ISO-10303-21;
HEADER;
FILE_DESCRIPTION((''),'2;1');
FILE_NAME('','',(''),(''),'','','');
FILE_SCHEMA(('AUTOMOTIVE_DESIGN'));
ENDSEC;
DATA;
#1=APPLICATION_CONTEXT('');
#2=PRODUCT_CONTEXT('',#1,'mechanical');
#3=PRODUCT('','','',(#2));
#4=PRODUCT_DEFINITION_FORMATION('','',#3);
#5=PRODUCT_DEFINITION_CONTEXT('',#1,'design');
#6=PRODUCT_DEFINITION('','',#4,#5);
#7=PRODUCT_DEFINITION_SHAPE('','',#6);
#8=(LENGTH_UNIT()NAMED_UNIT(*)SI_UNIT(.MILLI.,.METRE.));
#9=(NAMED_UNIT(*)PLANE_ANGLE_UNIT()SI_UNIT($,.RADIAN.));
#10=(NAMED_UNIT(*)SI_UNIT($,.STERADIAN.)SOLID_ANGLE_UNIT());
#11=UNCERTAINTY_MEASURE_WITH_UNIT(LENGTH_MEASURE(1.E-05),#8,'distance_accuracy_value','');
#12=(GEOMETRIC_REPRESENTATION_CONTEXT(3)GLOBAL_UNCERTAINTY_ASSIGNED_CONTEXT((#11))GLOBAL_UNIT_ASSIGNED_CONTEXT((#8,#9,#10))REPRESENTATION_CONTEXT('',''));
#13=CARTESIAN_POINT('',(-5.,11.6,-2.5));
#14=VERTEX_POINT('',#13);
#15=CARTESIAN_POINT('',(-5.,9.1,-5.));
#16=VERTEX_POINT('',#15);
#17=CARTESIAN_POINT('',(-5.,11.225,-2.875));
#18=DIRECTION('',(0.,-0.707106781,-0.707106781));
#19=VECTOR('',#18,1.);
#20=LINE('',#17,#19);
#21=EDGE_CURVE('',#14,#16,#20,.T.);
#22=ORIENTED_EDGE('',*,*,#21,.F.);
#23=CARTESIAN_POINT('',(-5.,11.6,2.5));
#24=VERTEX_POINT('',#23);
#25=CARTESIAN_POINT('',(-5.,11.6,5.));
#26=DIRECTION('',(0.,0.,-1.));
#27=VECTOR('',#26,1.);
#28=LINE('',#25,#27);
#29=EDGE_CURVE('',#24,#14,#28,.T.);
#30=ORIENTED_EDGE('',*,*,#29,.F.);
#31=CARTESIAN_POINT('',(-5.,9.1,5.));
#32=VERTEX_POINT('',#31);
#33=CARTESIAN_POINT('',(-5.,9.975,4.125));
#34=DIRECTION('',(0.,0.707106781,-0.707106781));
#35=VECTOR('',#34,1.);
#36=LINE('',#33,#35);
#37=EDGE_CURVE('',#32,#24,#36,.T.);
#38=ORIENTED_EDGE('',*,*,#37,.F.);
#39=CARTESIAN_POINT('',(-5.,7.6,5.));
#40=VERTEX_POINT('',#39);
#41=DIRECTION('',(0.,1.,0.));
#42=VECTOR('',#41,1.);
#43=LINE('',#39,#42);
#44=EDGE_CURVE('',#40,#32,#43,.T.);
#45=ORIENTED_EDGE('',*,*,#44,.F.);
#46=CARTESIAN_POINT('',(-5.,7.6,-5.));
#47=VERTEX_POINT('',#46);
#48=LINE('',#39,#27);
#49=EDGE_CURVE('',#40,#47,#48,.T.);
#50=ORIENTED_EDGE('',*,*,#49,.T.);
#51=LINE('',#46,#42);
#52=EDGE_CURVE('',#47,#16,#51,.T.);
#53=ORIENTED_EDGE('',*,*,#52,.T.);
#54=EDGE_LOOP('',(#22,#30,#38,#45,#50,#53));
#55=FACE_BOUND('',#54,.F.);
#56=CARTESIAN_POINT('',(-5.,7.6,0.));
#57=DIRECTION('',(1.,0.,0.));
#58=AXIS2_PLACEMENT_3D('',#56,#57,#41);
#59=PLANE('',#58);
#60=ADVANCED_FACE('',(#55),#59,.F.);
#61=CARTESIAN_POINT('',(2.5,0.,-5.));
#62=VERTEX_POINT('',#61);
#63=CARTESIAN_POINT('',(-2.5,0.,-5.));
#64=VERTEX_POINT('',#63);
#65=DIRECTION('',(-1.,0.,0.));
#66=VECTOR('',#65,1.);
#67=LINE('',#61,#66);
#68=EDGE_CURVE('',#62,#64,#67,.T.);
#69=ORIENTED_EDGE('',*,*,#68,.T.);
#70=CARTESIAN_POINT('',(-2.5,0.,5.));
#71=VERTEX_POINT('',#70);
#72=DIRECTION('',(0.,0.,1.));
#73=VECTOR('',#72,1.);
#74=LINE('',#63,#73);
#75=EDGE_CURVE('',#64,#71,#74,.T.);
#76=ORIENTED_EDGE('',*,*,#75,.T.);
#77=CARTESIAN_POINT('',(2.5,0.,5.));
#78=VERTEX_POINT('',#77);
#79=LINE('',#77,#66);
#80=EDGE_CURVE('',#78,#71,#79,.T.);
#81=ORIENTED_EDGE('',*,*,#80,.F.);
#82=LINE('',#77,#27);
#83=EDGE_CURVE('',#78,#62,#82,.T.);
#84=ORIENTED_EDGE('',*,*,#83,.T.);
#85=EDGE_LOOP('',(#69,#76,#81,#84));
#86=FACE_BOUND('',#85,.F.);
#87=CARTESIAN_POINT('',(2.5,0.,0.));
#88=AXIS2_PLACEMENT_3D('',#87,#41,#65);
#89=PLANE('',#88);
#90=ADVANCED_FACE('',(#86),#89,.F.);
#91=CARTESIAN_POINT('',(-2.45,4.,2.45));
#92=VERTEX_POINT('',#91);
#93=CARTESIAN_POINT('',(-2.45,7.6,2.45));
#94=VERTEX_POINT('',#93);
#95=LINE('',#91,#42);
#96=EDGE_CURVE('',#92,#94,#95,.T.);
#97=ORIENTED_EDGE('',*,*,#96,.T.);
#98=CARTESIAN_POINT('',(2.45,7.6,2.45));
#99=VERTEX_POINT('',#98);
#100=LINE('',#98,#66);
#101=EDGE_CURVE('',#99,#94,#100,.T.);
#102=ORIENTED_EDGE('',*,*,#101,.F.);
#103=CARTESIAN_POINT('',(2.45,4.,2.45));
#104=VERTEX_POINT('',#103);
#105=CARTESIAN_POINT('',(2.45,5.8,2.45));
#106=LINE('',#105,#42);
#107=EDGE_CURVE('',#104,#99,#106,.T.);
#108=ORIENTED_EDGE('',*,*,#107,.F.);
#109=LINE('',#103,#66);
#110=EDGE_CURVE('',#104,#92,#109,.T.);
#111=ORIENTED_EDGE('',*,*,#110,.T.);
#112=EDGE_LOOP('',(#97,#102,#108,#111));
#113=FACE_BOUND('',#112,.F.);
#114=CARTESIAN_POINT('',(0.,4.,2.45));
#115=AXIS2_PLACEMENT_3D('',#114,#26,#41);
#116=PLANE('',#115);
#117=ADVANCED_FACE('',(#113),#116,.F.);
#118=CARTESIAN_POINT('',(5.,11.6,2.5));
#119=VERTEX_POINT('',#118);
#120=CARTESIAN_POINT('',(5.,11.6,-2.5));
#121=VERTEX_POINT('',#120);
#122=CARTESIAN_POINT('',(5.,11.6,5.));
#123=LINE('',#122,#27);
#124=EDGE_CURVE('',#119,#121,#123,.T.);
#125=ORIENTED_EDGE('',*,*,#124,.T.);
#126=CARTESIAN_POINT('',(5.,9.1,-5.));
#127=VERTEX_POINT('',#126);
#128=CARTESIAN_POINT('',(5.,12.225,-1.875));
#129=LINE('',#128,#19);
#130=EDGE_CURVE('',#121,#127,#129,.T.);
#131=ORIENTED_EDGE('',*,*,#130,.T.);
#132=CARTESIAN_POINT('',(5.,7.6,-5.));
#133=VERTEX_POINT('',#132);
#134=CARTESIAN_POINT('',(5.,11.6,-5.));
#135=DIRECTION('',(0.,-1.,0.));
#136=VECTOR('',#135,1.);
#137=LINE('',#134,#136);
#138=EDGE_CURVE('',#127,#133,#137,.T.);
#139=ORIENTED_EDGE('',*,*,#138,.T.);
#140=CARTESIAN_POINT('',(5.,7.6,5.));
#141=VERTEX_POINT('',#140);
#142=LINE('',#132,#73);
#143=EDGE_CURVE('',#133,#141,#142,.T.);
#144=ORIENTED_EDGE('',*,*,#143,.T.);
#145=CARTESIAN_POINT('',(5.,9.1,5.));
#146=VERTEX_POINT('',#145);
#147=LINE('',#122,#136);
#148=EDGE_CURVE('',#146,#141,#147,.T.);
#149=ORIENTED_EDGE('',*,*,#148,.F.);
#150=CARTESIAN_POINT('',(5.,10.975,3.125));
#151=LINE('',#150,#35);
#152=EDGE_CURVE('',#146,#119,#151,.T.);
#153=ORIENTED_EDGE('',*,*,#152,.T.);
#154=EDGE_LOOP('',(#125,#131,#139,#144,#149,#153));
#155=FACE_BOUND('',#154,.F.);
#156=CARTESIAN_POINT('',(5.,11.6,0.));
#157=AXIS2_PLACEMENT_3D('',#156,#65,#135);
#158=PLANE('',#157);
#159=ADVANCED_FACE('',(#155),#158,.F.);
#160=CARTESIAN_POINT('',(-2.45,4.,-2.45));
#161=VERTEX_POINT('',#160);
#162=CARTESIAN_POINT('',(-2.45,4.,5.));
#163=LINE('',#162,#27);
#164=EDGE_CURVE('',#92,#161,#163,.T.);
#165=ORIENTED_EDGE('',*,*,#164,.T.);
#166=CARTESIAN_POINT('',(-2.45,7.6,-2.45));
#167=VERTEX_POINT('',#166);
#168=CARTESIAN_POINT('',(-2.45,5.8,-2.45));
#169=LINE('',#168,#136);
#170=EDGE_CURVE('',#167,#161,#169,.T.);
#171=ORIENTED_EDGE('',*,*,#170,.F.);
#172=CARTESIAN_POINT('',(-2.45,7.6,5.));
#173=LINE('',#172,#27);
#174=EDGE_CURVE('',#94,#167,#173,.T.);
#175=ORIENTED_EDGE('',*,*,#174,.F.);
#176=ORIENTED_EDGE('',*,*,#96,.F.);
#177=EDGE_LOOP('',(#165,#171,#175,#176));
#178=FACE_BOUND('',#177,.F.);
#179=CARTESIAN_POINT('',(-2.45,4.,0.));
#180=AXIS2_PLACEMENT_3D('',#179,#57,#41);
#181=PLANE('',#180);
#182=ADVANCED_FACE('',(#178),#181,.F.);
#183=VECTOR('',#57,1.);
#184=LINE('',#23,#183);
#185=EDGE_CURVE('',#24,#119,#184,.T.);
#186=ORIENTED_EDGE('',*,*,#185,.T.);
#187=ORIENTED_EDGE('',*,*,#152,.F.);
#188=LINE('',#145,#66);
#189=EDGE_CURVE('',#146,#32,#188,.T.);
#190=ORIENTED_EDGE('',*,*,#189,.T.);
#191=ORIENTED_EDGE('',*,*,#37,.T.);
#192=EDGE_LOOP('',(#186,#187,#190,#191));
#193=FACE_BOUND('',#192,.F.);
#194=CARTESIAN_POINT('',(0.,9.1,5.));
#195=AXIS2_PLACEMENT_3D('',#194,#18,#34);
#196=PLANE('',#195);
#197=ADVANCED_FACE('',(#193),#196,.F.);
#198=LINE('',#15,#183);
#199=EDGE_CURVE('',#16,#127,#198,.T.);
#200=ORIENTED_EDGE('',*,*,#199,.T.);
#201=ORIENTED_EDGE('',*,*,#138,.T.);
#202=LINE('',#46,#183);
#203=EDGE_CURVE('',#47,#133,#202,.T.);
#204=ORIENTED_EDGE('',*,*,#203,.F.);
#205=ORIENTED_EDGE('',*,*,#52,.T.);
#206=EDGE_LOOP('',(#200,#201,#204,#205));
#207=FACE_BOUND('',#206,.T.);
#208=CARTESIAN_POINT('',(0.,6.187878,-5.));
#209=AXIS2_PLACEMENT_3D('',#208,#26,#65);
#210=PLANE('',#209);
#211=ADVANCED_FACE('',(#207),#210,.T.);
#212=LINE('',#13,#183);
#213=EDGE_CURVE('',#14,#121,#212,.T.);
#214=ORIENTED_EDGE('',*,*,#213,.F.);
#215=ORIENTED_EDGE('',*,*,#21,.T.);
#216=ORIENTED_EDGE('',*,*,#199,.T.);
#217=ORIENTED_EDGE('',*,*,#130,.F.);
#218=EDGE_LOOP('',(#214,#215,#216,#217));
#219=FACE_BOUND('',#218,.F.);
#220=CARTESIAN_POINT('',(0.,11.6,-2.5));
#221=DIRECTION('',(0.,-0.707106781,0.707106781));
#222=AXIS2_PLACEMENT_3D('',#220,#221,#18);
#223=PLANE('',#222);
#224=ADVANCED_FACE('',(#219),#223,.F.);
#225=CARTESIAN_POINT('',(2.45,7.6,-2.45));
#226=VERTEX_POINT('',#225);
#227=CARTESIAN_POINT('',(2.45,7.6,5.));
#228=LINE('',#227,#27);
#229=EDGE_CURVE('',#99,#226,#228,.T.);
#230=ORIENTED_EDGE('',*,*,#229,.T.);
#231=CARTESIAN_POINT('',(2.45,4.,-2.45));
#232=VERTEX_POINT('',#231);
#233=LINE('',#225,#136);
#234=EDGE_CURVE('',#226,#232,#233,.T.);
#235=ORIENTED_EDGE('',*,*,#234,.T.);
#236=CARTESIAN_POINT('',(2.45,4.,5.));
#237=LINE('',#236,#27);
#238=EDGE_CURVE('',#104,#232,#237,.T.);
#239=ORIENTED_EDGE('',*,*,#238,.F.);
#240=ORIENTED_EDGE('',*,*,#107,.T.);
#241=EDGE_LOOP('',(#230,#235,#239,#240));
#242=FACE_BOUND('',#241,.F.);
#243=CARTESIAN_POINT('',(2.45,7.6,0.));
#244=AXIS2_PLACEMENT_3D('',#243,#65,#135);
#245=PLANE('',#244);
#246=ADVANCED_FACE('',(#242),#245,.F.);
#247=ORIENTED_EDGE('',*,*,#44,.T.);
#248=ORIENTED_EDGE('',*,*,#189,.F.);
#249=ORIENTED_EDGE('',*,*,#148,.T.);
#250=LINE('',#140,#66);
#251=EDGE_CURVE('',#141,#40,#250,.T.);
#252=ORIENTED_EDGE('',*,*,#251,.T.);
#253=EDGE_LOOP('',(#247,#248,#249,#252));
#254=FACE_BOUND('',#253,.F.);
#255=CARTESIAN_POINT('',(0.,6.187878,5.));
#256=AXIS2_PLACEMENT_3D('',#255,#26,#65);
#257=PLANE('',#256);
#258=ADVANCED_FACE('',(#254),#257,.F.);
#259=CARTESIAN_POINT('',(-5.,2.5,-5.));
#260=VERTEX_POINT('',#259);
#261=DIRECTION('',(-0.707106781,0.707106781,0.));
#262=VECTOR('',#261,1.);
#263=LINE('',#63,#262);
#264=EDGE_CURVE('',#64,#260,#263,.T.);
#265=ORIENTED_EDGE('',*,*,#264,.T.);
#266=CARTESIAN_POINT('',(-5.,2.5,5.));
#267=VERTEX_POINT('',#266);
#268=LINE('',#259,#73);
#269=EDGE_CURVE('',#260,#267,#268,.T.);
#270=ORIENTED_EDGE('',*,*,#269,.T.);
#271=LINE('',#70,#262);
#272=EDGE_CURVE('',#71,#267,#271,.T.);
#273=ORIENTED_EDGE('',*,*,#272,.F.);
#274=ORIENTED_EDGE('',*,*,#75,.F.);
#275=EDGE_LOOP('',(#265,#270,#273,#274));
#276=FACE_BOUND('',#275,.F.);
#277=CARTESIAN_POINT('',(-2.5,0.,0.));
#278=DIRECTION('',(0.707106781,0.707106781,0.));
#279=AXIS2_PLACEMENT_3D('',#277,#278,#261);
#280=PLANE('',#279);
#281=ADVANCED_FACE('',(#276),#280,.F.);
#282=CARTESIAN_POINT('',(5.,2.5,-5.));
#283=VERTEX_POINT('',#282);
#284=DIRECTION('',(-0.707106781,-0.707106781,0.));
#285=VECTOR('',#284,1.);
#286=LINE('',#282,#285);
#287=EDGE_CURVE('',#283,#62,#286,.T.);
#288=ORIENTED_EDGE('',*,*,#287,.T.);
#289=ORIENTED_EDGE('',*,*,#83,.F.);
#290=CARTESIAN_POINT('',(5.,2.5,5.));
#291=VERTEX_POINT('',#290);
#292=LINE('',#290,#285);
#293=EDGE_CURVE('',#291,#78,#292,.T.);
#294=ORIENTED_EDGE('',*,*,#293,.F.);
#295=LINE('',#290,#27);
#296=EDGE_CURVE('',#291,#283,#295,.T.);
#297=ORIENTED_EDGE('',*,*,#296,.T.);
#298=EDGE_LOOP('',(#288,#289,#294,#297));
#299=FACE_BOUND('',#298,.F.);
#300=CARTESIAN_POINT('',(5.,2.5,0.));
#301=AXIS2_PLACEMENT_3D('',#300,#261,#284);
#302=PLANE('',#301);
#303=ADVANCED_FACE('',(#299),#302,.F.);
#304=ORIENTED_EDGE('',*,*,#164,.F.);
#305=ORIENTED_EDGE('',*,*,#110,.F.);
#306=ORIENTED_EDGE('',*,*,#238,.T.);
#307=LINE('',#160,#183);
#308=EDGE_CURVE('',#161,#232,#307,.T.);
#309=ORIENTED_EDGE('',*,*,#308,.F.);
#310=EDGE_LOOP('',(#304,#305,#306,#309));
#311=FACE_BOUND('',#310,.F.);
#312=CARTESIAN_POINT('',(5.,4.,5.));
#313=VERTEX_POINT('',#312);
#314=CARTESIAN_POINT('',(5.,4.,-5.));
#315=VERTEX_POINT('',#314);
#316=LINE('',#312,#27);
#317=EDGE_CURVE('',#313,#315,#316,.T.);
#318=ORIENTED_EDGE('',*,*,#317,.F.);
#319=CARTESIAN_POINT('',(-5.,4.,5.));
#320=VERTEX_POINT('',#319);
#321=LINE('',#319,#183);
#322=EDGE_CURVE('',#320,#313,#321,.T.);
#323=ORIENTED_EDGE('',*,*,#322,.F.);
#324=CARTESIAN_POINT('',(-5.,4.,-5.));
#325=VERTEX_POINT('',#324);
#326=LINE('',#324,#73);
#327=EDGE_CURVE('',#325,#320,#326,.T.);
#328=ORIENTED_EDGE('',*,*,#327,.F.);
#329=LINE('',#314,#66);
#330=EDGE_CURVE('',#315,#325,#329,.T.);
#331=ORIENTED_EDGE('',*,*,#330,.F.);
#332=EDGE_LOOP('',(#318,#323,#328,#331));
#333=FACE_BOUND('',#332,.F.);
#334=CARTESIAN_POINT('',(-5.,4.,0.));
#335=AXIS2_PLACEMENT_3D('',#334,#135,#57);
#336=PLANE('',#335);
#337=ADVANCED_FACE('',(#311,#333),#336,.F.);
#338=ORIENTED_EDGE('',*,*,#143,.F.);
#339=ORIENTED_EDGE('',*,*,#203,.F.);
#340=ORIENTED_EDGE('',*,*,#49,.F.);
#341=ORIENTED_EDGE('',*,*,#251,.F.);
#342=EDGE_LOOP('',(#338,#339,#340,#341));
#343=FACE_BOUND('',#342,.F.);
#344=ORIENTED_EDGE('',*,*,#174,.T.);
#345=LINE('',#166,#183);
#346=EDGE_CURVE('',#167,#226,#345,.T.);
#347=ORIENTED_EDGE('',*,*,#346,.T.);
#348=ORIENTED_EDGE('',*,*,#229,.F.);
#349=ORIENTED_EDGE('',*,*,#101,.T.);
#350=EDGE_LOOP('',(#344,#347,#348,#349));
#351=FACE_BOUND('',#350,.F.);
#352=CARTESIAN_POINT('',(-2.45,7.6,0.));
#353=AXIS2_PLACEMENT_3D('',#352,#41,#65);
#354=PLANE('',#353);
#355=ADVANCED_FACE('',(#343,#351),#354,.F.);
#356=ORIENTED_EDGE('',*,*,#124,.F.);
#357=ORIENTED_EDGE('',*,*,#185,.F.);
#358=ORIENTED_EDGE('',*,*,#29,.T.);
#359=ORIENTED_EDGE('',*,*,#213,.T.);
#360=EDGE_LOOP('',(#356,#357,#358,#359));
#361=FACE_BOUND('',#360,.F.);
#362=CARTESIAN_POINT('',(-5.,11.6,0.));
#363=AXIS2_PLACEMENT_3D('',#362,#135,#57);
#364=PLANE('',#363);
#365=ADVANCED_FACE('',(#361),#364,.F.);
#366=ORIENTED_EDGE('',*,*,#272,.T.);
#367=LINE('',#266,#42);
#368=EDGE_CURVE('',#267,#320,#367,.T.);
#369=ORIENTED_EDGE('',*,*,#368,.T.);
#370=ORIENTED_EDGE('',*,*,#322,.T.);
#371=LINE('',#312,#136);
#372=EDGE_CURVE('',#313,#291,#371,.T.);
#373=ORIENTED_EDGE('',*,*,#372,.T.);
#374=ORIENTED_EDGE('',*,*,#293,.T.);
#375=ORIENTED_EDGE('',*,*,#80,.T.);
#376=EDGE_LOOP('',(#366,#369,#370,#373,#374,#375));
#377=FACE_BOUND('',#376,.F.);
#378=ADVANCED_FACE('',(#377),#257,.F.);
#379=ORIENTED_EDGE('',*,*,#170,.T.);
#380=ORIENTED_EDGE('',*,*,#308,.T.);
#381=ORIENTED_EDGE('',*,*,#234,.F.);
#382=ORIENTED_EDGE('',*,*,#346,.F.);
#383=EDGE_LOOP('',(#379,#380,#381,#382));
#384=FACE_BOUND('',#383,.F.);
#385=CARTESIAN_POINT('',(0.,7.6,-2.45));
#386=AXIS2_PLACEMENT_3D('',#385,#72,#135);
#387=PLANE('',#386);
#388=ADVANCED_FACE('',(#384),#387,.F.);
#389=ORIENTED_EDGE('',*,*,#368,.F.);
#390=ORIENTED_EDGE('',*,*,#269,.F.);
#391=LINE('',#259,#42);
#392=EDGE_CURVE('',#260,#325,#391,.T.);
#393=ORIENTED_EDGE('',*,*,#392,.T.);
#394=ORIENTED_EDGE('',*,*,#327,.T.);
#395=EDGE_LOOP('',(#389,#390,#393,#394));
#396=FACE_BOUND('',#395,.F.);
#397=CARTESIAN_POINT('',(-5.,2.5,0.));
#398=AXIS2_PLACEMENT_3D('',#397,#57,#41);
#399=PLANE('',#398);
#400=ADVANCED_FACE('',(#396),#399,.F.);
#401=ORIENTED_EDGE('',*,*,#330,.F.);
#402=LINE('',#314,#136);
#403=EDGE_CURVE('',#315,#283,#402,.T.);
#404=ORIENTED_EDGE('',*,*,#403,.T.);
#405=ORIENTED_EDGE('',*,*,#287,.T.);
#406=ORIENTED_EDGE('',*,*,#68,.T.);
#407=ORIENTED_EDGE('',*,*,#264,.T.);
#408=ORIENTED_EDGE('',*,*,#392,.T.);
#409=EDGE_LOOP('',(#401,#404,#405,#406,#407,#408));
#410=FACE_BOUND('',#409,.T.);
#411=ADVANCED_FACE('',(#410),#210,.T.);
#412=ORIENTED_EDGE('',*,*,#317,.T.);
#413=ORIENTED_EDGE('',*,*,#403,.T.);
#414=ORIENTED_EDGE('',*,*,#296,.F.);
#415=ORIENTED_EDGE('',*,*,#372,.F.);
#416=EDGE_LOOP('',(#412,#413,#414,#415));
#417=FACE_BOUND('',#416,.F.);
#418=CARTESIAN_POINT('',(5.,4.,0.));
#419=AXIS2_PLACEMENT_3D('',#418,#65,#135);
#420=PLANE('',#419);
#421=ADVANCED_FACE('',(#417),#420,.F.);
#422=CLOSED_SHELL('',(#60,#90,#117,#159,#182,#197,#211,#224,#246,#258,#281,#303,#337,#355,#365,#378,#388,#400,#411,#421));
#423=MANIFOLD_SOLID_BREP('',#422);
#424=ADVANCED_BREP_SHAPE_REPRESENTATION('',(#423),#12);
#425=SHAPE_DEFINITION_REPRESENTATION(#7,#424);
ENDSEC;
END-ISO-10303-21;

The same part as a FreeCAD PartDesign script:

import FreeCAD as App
import Part
import Sketcher

V = App.Vector


def add_polygon(sketch, points):
    """Adds a closed chain of lines whose ends are joined by coincident constraints."""
    first, n = sketch.GeometryCount, len(points)
    for a, b in zip(points, points[1:] + points[:1]):
        sketch.addGeometry(Part.LineSegment(App.Vector(*a, 0), App.Vector(*b, 0)), False)
    for i in range(n):
        sketch.addConstraint(Sketcher.Constraint("Coincident", first + i, 2, first + (i + 1) % n, 1))

doc = App.newDocument("Part")
body = doc.addObject("PartDesign::Body", "Body")

sketch1 = body.newObject("Sketcher::SketchObject", "Sketch")
sketch1.AttachmentSupport = (doc.getObject("XY_Plane"), [""])
sketch1.MapMode = "FlatFace"
add_polygon(sketch1, [(-2.5, 4), (-5, 4), (-5, 2.5), (-2.5, 0), (2.5, 0), (5, 2.5), (5, 4), (2.5, 4), (2.5, 7.6), (5, 7.6), (5, 11.6), (-5, 11.6), (-5, 7.6), (-2.5, 7.6)])
sketch1.addConstraint([
    Sketcher.Constraint("Horizontal", 0),
    Sketcher.Constraint("Vertical", 1),
    Sketcher.Constraint("Horizontal", 3),
    Sketcher.Constraint("Vertical", 5),
    Sketcher.Constraint("Horizontal", 6),
    Sketcher.Constraint("Vertical", 7),
    Sketcher.Constraint("Horizontal", 8),
    Sketcher.Constraint("Vertical", 9),
    Sketcher.Constraint("Horizontal", 10),
    Sketcher.Constraint("Vertical", 11),
    Sketcher.Constraint("Horizontal", 12),
    Sketcher.Constraint("Vertical", 13),
    Sketcher.Constraint("Symmetric", 2, 2, 3, 2, -1, 1),
    Sketcher.Constraint("Symmetric", 1, 2, 4, 2, -2),
    Sketcher.Constraint("Symmetric", 8, 2, 11, 2, -2),
    Sketcher.Constraint("Symmetric", 6, 2, 13, 2, -2),
    Sketcher.Constraint("Perpendicular", 2, 4),
    Sketcher.Constraint("Vertical", 5, 2, 8, 2),
    Sketcher.Constraint("DistanceX", 3, 1, 3, 2, 5.0),
    Sketcher.Constraint("DistanceX", 10, 2, 10, 1, 10.0),
    Sketcher.Constraint("DistanceY", 9, 1, 9, 2, 4.0),
    Sketcher.Constraint("DistanceY", 1, 2, 1, 1, 1.5),
    Sketcher.Constraint("DistanceY", 7, 1, 7, 2, 3.6),
    Sketcher.Constraint("DistanceX", 0, 2, 0, 1, 2.55),
])
pad1 = body.newObject("PartDesign::Pad", "Pad")
pad1.Profile = sketch1
pad1.Length = 10
pad1.Midplane = True

sketch2 = body.newObject("Sketcher::SketchObject", "Sketch001")
sketch2.AttachmentSupport = (doc.getObject("YZ_Plane"), [""])
sketch2.MapMode = "FlatFace"
add_polygon(sketch2, [(11.6, 2.5), (11.6, -2.5), (9.1, -5), (7.6, -5), (7.6, -2.5), (4, -2.5), (4, -6.9), (13.2, -6.9), (13.2, 6.9), (4, 6.9), (4, 2.5), (7.6, 2.5), (7.6, 5), (9.1, 5)])
sketch2.addConstraint([
    Sketcher.Constraint("Vertical", 0),
    Sketcher.Constraint("Horizontal", 2),
    Sketcher.Constraint("Vertical", 3),
    Sketcher.Constraint("Horizontal", 4),
    Sketcher.Constraint("Vertical", 5),
    Sketcher.Constraint("Horizontal", 6),
    Sketcher.Constraint("Vertical", 7),
    Sketcher.Constraint("Horizontal", 8),
    Sketcher.Constraint("Vertical", 9),
    Sketcher.Constraint("Horizontal", 10),
    Sketcher.Constraint("Vertical", 11),
    Sketcher.Constraint("Horizontal", 12),
    Sketcher.Constraint("Symmetric", 5, 2, 8, 2, -1),
    Sketcher.Constraint("Symmetric", 3, 2, 10, 2, -1),
    Sketcher.Constraint("Symmetric", 1, 2, 12, 2, -1),
    Sketcher.Constraint("Perpendicular", 1, 13),
    Sketcher.Constraint("Equal", 1, 13),
    Sketcher.Constraint("DistanceY", 0, 2, 0, 1, 5.0),
    Sketcher.Constraint("DistanceX", 2, 2, 2, 1, 1.5),
    Sketcher.Constraint("DistanceX", 4, 2, 4, 1, 3.6),
    Sketcher.Constraint("DistanceY", 1, 2, -1, 1, 5.0),
    Sketcher.Constraint("DistanceX", -1, 1, 4, 2, 4.0),
    Sketcher.Constraint("DistanceY", 3, 1, 3, 2, 2.55),
    Sketcher.Constraint("DistanceX", 6, 1, 6, 2, 9.16095),
    Sketcher.Constraint("DistanceY", 5, 2, 5, 1, 4.442367),
])
pocket1 = body.newObject("PartDesign::Pocket", "Pocket")
pocket1.Profile = sketch2
pocket1.Type = "ThroughAll"
pocket1.Midplane = True

doc.recompute()
